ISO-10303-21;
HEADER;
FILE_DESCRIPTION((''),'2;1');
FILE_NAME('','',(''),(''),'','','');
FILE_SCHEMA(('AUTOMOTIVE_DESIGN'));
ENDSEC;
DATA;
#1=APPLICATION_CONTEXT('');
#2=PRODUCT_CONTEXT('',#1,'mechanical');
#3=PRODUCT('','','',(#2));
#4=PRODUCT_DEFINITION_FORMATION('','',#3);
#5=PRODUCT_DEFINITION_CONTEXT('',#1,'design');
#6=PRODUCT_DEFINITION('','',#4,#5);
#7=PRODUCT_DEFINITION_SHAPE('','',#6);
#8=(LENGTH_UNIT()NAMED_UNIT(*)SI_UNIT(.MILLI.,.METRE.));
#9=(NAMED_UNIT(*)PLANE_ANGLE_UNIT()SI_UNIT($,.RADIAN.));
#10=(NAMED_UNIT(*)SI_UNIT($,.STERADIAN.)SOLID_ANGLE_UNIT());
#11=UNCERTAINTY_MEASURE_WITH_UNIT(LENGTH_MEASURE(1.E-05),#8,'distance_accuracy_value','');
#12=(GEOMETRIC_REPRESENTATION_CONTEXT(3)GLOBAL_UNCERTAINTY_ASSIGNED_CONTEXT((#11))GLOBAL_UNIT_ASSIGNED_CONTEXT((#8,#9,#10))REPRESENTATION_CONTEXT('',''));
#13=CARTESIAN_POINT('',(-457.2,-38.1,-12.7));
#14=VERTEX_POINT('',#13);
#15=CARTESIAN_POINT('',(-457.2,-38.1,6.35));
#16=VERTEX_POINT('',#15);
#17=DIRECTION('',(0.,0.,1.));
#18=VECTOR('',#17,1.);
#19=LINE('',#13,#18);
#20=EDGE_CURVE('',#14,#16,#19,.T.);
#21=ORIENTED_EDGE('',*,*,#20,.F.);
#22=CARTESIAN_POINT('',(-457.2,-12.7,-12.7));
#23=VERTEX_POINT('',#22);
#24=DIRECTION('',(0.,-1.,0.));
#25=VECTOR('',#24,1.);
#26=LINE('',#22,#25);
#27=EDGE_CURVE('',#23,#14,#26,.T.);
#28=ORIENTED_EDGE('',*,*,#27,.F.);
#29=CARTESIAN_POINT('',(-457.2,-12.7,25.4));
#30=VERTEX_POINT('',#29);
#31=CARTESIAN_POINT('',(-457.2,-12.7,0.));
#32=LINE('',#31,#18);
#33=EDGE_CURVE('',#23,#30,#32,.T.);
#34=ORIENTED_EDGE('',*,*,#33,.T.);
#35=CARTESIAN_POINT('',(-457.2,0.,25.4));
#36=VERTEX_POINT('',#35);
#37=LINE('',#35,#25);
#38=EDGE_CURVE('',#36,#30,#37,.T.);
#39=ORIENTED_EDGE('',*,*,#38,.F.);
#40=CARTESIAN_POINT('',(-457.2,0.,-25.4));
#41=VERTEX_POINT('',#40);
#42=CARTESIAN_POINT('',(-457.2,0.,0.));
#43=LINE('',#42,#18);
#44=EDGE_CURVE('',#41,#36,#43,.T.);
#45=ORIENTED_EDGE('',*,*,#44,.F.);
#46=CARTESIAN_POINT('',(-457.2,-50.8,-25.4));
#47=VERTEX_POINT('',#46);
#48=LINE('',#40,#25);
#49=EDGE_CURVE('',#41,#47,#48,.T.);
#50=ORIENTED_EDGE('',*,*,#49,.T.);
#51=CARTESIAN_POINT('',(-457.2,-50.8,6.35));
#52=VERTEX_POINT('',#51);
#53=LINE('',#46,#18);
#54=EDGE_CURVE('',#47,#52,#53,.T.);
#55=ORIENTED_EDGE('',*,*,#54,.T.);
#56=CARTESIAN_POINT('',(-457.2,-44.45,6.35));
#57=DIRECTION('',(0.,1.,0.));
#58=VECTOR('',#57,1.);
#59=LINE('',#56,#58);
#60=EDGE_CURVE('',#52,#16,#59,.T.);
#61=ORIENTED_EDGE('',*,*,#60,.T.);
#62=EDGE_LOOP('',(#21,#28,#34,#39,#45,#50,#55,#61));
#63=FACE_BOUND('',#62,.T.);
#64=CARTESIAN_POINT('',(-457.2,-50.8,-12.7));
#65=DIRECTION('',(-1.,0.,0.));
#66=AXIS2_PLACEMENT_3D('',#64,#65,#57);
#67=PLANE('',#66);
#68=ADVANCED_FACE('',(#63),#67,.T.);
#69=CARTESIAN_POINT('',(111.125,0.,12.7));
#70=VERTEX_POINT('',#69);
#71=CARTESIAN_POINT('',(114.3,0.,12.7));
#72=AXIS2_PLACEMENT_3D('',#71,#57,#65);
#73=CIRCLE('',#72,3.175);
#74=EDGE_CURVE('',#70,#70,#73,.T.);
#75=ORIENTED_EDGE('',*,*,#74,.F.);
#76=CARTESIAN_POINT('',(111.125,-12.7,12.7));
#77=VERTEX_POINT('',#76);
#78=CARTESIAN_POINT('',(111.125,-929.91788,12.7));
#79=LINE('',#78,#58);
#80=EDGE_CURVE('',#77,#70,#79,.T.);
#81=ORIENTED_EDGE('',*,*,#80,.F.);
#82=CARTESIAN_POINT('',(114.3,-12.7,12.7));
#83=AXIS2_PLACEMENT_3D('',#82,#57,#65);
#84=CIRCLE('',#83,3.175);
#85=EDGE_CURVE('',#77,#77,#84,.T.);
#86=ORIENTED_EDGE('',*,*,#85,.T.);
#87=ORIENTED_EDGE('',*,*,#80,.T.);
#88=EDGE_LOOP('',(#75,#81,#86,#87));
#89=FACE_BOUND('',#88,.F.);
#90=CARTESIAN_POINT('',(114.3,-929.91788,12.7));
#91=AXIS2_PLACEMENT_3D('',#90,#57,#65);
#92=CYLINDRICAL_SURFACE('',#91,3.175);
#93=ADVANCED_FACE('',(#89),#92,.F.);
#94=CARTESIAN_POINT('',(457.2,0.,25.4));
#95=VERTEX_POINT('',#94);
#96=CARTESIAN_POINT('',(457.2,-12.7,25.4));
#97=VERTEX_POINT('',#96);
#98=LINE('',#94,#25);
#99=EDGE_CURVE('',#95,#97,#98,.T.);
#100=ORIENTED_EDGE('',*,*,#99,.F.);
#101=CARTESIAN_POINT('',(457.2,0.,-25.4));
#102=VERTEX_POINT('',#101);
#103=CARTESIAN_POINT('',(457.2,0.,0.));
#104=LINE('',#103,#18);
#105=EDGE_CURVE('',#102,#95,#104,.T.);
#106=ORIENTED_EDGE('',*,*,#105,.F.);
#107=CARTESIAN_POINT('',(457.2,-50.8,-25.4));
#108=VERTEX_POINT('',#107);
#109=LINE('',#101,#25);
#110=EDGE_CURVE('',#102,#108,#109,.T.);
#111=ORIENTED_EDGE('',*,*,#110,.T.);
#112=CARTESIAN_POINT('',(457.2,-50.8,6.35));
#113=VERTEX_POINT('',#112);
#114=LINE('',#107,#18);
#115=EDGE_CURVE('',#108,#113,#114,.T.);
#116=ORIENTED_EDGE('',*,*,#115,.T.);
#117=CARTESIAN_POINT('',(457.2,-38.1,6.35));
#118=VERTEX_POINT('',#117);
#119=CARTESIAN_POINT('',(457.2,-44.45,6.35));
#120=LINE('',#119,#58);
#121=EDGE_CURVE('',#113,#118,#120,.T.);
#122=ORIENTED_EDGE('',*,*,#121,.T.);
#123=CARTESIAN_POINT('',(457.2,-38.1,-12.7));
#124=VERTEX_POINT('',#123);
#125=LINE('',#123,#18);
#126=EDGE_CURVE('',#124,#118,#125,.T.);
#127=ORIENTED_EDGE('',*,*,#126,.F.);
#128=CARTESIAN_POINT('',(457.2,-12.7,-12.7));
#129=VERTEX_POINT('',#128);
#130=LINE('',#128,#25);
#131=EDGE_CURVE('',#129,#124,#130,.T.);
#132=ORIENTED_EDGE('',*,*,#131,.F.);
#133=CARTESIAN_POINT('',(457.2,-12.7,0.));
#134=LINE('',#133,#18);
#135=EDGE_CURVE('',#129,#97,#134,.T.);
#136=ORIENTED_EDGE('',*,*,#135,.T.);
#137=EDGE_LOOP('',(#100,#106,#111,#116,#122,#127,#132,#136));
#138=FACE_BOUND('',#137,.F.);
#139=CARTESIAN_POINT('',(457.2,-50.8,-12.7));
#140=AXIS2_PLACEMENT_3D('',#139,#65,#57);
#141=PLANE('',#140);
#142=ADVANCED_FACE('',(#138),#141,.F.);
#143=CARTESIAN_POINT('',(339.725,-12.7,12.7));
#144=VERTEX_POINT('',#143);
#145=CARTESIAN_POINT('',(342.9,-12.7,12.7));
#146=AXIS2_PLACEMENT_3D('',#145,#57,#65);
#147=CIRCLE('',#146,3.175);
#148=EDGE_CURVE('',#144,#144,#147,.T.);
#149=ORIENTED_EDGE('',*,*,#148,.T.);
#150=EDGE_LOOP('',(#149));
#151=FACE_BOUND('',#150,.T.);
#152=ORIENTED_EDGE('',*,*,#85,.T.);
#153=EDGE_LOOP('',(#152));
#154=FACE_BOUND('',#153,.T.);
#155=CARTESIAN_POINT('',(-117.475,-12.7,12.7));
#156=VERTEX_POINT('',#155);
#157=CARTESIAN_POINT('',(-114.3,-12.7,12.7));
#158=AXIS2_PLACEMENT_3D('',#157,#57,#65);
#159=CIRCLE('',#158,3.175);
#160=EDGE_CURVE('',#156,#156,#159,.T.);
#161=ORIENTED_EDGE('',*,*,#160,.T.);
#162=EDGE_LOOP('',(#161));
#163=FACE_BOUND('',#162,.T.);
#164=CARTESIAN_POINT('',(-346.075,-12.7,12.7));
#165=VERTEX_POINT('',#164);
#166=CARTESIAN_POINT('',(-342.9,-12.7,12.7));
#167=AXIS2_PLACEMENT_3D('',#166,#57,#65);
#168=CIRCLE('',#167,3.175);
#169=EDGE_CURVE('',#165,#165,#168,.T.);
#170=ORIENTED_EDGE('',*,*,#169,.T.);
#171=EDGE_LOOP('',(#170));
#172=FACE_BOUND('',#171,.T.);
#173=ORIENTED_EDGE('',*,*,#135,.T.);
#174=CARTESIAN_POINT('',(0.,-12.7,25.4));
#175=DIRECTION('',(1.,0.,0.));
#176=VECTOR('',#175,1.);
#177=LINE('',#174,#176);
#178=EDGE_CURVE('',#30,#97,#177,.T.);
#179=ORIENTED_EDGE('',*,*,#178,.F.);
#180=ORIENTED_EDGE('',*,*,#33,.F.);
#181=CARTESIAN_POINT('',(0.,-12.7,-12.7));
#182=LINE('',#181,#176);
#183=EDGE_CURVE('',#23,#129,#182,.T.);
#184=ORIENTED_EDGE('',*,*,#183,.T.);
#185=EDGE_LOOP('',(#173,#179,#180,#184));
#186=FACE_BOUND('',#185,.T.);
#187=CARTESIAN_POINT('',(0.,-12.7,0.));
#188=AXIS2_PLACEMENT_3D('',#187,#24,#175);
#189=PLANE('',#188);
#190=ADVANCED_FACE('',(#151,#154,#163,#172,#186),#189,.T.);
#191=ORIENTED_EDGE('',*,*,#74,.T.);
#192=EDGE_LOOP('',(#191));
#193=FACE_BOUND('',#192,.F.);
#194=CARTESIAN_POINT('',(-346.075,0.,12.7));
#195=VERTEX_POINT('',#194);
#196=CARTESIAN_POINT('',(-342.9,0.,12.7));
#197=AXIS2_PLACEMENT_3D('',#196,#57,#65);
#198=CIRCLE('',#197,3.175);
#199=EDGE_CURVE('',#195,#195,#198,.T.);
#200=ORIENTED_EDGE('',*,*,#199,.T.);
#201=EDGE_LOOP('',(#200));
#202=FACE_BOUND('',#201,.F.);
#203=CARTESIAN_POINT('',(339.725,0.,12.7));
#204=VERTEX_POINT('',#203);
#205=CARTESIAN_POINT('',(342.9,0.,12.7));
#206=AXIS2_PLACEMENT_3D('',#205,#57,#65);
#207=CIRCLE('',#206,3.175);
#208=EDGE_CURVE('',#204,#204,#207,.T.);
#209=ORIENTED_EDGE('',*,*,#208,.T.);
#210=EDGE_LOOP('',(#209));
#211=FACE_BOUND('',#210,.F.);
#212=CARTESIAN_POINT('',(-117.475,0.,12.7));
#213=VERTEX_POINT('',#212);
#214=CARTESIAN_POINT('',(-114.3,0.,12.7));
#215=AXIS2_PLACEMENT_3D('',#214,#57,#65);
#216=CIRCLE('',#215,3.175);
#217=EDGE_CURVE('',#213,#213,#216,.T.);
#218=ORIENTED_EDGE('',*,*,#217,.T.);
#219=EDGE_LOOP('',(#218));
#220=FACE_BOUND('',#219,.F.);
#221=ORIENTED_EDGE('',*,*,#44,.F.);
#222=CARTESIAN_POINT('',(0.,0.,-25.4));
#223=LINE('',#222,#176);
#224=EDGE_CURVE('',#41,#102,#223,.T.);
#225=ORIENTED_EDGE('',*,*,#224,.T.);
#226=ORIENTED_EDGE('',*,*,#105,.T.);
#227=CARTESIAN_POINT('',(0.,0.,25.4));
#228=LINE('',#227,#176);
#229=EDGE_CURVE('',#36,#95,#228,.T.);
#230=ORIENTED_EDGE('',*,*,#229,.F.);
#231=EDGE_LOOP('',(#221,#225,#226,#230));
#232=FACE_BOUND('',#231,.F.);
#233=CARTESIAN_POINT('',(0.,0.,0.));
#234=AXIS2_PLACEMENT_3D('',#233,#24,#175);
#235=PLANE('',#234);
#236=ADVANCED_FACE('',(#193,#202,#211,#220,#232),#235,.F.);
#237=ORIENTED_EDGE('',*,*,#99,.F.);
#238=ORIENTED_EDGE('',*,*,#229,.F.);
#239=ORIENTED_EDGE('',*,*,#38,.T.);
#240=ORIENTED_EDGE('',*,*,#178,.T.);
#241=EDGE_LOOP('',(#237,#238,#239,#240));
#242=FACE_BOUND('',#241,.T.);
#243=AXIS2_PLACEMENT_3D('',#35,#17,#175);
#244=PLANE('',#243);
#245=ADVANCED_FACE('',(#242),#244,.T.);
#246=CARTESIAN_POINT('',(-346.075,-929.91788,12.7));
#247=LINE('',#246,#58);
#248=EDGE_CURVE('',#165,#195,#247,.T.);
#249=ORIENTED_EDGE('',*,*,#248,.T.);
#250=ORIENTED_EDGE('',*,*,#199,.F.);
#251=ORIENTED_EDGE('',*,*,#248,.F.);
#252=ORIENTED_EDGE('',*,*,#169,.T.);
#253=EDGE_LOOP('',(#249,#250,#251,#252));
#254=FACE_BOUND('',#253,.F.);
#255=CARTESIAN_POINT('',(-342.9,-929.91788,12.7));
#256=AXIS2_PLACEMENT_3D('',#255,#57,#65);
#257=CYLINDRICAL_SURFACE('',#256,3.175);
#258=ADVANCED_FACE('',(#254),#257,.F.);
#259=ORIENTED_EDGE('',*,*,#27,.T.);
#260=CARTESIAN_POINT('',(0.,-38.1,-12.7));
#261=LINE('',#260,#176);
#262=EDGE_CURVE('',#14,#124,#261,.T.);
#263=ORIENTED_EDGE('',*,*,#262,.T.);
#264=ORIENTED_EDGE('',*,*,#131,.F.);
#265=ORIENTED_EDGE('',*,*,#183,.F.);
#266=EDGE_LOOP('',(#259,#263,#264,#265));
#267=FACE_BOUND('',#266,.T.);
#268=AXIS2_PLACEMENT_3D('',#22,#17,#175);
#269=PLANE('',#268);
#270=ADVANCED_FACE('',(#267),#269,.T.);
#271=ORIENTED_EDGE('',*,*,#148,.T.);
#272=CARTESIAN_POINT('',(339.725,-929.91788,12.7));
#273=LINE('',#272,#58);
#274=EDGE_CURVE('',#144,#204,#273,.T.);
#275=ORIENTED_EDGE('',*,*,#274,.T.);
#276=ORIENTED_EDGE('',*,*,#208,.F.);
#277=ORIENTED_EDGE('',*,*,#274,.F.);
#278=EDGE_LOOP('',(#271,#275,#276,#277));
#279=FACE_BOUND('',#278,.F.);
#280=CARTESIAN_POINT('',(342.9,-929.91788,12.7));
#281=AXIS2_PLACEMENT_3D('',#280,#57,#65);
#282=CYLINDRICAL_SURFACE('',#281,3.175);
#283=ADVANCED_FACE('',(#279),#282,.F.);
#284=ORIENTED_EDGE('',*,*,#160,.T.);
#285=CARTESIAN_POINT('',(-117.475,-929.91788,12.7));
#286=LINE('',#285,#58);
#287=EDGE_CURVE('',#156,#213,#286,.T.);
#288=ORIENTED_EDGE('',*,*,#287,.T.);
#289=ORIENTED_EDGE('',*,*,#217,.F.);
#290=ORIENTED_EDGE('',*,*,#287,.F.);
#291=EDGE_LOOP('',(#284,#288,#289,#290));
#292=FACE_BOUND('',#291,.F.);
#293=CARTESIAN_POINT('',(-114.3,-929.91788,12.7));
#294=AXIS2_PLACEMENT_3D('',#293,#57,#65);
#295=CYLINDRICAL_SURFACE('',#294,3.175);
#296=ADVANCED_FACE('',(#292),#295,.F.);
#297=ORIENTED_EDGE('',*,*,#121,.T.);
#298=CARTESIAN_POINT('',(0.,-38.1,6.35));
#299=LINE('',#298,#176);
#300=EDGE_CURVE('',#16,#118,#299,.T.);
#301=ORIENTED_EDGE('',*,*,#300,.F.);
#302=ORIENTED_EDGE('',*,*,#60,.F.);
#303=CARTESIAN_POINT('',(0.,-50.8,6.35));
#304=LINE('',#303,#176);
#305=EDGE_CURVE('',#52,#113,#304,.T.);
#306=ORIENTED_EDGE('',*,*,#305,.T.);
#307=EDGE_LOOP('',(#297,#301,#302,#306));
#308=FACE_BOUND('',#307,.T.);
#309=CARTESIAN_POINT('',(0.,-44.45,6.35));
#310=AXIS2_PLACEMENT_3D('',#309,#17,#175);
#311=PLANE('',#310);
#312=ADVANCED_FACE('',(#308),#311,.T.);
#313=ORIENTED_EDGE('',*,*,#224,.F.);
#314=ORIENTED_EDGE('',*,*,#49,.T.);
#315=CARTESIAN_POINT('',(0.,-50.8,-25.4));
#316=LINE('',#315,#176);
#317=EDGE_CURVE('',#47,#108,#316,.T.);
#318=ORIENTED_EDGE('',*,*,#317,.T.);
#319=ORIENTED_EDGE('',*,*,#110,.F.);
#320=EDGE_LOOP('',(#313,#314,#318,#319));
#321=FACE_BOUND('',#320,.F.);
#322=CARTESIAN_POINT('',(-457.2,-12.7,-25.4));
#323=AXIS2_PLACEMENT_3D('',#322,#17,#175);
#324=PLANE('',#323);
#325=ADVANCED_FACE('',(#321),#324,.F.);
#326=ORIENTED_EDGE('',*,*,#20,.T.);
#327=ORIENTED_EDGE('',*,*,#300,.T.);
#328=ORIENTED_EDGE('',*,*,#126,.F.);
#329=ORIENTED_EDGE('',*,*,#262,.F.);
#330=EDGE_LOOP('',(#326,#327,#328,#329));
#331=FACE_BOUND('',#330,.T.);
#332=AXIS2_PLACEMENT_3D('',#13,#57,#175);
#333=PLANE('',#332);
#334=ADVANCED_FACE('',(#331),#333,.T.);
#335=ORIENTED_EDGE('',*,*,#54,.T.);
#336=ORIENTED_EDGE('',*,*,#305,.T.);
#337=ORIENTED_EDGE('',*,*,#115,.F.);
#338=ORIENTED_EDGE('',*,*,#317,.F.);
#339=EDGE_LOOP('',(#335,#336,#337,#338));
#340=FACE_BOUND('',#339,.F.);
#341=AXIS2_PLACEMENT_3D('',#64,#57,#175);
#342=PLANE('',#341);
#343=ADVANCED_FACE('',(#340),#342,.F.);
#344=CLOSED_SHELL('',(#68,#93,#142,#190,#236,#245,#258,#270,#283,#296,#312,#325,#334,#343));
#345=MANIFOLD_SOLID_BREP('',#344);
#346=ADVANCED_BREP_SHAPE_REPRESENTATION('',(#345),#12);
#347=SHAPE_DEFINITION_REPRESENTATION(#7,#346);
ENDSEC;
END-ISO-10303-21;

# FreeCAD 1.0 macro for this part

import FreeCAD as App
import Part
import Sketcher

V = App.Vector
Q = App.Units.Quantity

doc = App.newDocument("Part")
body = doc.addObject("PartDesign::Body", "Body")

# Sketch on XZ plane
sketch1 = body.newObject("Sketcher::SketchObject", "Sketch")
sketch1.AttachmentSupport = (doc.getObject("XZ_Plane"), [""])
sketch1.MapMode = "FlatFace"
sketch1.addGeometry([
    Part.LineSegment(V(-457, 25, 0), V(-457, -25, 0)),
    Part.LineSegment(V(-457, -25, 0), V(457, -25, 0)),
    Part.LineSegment(V(457, -25, 0), V(457, 25, 0)),
    Part.LineSegment(V(457, 25, 0), V(-457, 25, 0)),
], False)
sketch1.addConstraint([
    Sketcher.Constraint("Coincident", 0, 2, 1, 1),
    Sketcher.Constraint("Coincident", 1, 2, 2, 1),
    Sketcher.Constraint("Coincident", 2, 2, 3, 1),
    Sketcher.Constraint("Coincident", 3, 2, 0, 1),
    Sketcher.Constraint("Vertical", 0),
    Sketcher.Constraint("Horizontal", 1),
    Sketcher.Constraint("Vertical", 2),
    Sketcher.Constraint("Horizontal", 3),
    Sketcher.Constraint("Symmetric", 0, 2, 2, 2, -1, 1),
    Sketcher.Constraint("DistanceX", 1, 1, 1, 2, Q("36 in")),
    Sketcher.Constraint("DistanceY", 0, 2, 0, 1, Q("2 in")),
])
pad1 = body.newObject("PartDesign::Pad", "Pad")
pad1.Profile = sketch1
pad1.Length = Q("0.5 in")

# Sketch on XZ plane
sketch2 = body.newObject("Sketcher::SketchObject", "Sketch001")
sketch2.AttachmentSupport = (doc.getObject("XZ_Plane"), [""])
sketch2.MapMode = "FlatFace"
sketch2.AttachmentOffset = App.Placement(V(0, 0, 0.5 * 25.4), App.Rotation())
sketch2.addGeometry([
    Part.LineSegment(V(-457, -13, 0), V(-457, -25, 0)),
    Part.LineSegment(V(-457, -25, 0), V(457, -25, 0)),
    Part.LineSegment(V(457, -25, 0), V(457, -13, 0)),
    Part.LineSegment(V(457, -13, 0), V(-457, -13, 0)),
], False)
sketch2.addConstraint([
    Sketcher.Constraint("Coincident", 0, 2, 1, 1),
    Sketcher.Constraint("Coincident", 1, 2, 2, 1),
    Sketcher.Constraint("Coincident", 2, 2, 3, 1),
    Sketcher.Constraint("Coincident", 3, 2, 0, 1),
    Sketcher.Constraint("Vertical", 0),
    Sketcher.Constraint("Horizontal", 1),
    Sketcher.Constraint("Vertical", 2),
    Sketcher.Constraint("Horizontal", 3),
    Sketcher.Constraint("DistanceX", 1, 1, 1, 2, Q("36 in")),
    Sketcher.Constraint("DistanceY", 0, 2, 0, 1, Q("0.5 in")),
    Sketcher.Constraint("DistanceX", 0, 2, -1, 1, Q("18 in")),
    Sketcher.Constraint("DistanceY", 0, 2, -1, 1, Q("1 in")),
])
pad2 = body.newObject("PartDesign::Pad", "Pad001")
pad2.Profile = sketch2
pad2.Length = Q("1.5 in")

# Sketch on XY plane
sketch3 = body.newObject("Sketcher::SketchObject", "Sketch002")
sketch3.AttachmentSupport = (doc.getObject("XY_Plane"), [""])
sketch3.MapMode = "FlatFace"
sketch3.AttachmentOffset = App.Placement(V(0, 0, -0.5 * 25.4), App.Rotation())
sketch3.addGeometry([
    Part.LineSegment(V(-457, -38, 0), V(-457, -51, 0)),
    Part.LineSegment(V(-457, -51, 0), V(457, -51, 0)),
    Part.LineSegment(V(457, -51, 0), V(457, -38, 0)),
    Part.LineSegment(V(457, -38, 0), V(-457, -38, 0)),
], False)
sketch3.addConstraint([
    Sketcher.Constraint("Coincident", 0, 2, 1, 1),
    Sketcher.Constraint("Coincident", 1, 2, 2, 1),
    Sketcher.Constraint("Coincident", 2, 2, 3, 1),
    Sketcher.Constraint("Coincident", 3, 2, 0, 1),
    Sketcher.Constraint("Vertical", 0),
    Sketcher.Constraint("Horizontal", 1),
    Sketcher.Constraint("Vertical", 2),
    Sketcher.Constraint("Horizontal", 3),
    Sketcher.Constraint("DistanceX", 1, 1, 1, 2, Q("36 in")),
    Sketcher.Constraint("DistanceY", 0, 2, 0, 1, Q("0.5 in")),
    Sketcher.Constraint("DistanceX", 0, 2, -1, 1, Q("18 in")),
    Sketcher.Constraint("DistanceY", 0, 2, -1, 1, Q("2 in")),
])
pad3 = body.newObject("PartDesign::Pad", "Pad002")
pad3.Profile = sketch3
pad3.Length = Q("0.75 in")

# Sketch on XZ plane
sketch4 = body.newObject("Sketcher::SketchObject", "Sketch003")
sketch4.AttachmentSupport = (doc.getObject("XZ_Plane"), [""])
sketch4.MapMode = "FlatFace"
sketch4.AttachmentOffset = App.Placement(V(0, 0, 0.5 * 25.4), App.Rotation())
sketch4.addGeometry([
    Part.Circle(V(-342.9, 12.7, 0), V(0, 0, 1), 3.2),
    Part.Circle(V(-114.3, 12.7, 0), V(0, 0, 1), 3.2),
    Part.Circle(V(114.3, 12.7, 0), V(0, 0, 1), 3.2),
    Part.Circle(V(342.9, 12.7, 0), V(0, 0, 1), 3.2),
], False)
sketch4.addConstraint([
    Sketcher.Constraint("Equal", 0, 1),
    Sketcher.Constraint("Equal", 1, 2),
    Sketcher.Constraint("Equal", 2, 3),
    Sketcher.Constraint("Symmetric", 1, 3, 2, 3, -2),
    Sketcher.Constraint("Symmetric", 0, 3, 3, 3, -2),
    Sketcher.Constraint("Horizontal", 0, 3, 1, 3),
    Sketcher.Constraint("Diameter", 0, Q("0.25 in")),
    Sketcher.Constraint("DistanceX", 0, 3, 1, 3, Q("9 in")),
    Sketcher.Constraint("DistanceX", 1, 3, 2, 3, Q("9 in")),
    Sketcher.Constraint("DistanceY", -1, 1, 0, 3, Q("0.5 in")),
])
doc.recompute()
hole = body.newObject("PartDesign::Hole", "Hole")
hole.Profile = sketch4
hole.ThreadType = "None"
hole.Diameter = Q("0.25 in")
hole.DepthType = "ThroughAll"

doc.recompute()
